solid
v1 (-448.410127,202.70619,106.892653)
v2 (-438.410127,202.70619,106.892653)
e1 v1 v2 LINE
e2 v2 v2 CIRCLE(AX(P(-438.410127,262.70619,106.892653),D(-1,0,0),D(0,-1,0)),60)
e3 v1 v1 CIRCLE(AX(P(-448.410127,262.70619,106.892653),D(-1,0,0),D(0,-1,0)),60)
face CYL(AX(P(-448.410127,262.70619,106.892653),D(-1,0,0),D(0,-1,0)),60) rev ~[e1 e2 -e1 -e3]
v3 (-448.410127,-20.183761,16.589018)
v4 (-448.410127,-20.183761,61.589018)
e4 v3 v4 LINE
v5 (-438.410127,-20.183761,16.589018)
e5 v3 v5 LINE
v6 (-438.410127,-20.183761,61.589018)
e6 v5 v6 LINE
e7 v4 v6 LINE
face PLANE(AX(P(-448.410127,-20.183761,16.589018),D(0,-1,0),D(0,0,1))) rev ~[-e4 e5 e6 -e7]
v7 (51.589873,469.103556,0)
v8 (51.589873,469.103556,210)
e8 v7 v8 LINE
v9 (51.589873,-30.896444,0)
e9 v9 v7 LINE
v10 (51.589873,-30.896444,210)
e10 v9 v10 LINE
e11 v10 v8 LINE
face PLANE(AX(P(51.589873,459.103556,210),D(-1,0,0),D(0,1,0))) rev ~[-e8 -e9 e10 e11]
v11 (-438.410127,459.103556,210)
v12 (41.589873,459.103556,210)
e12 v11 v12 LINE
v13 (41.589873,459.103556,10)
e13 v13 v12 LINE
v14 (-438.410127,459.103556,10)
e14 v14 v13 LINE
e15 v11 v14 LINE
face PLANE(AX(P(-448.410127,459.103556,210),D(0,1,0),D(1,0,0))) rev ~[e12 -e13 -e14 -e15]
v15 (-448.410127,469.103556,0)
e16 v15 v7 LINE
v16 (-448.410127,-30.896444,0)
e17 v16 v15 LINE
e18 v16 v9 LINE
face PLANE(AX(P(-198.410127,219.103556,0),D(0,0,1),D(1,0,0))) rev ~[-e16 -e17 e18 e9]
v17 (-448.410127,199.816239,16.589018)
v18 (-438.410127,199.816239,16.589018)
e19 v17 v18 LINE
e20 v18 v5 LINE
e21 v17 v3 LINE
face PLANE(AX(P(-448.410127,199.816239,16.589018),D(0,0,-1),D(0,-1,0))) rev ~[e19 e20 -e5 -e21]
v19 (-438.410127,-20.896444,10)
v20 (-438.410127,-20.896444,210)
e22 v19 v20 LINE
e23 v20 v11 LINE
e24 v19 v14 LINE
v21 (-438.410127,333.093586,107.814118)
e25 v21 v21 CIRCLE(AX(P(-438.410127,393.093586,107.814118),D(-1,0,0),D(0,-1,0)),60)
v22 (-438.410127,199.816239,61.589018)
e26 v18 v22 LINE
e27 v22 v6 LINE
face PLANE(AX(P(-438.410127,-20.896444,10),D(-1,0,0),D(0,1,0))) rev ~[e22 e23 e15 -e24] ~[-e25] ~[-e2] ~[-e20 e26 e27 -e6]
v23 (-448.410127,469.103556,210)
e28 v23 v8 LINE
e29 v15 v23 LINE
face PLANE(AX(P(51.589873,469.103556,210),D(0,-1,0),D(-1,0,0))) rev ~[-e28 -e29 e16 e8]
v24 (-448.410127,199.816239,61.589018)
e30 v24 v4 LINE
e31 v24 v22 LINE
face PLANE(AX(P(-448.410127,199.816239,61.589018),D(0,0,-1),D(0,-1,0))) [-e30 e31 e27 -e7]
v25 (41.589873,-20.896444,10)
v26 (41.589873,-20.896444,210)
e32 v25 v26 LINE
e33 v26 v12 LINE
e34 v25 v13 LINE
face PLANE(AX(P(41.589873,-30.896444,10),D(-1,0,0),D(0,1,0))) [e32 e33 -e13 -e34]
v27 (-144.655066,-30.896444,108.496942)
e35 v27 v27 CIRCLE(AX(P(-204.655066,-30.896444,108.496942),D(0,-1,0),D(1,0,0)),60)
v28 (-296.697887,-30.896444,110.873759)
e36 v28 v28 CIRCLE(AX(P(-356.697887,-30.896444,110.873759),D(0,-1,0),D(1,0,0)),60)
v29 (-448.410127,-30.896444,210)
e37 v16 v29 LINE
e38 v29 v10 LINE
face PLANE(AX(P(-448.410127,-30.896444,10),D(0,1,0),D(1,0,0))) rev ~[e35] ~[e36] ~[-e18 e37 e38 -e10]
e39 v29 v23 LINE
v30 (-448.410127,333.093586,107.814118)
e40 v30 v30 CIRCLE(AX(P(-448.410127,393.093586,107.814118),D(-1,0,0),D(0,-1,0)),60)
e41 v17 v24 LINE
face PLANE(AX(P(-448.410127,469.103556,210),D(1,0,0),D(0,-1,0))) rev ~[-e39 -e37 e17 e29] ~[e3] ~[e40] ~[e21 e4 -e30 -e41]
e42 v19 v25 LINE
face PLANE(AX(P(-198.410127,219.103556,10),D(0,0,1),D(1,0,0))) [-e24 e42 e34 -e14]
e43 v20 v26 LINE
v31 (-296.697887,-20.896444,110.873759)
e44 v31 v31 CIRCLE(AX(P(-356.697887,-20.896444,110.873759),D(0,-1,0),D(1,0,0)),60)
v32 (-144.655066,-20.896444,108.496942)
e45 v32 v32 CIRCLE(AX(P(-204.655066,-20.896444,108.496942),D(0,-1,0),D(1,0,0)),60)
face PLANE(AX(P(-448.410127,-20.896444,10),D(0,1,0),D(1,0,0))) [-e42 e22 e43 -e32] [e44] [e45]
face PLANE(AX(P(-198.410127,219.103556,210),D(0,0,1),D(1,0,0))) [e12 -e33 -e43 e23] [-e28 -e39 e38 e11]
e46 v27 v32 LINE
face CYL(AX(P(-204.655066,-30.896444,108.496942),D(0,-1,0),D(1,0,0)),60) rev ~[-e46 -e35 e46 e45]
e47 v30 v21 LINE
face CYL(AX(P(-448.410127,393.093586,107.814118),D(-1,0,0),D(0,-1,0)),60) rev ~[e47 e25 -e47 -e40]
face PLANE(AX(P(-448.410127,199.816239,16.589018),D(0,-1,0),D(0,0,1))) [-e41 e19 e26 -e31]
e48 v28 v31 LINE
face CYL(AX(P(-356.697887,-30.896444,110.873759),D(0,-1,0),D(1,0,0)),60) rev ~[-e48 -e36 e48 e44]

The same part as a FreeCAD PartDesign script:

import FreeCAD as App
import Part
import Sketcher

V = App.Vector

doc = App.newDocument("Part")
body = doc.addObject("PartDesign::Body", "Body")

sketch1 = body.newObject("Sketcher::SketchObject", "Sketch")
sketch1.AttachmentSupport = (doc.getObject("XY_Plane"), [""])
sketch1.MapMode = "FlatFace"
sketch1.addGeometry([
    Part.LineSegment(V(-448, 469, 0), V(-448, -31, 0)),
    Part.LineSegment(V(-448, -31, 0), V(52, -31, 0)),
    Part.LineSegment(V(52, -31, 0), V(52, 469, 0)),
    Part.LineSegment(V(52, 469, 0), V(-448, 469, 0)),
], False)
sketch1.addConstraint([
    Sketcher.Constraint("Coincident", 0, 2, 1, 1),
    Sketcher.Constraint("Coincident", 1, 2, 2, 1),
    Sketcher.Constraint("Coincident", 2, 2, 3, 1),
    Sketcher.Constraint("Coincident", 3, 2, 0, 1),
    Sketcher.Constraint("Vertical", 0),
    Sketcher.Constraint("Horizontal", 1),
    Sketcher.Constraint("Vertical", 2),
    Sketcher.Constraint("Horizontal", 3),
    Sketcher.Constraint("Equal", 3, 0),
    Sketcher.Constraint("DistanceX", 1, 1, 1, 2, 500.0),
    Sketcher.Constraint("DistanceX", 0, 2, -1, 1, 448.410127),
    Sketcher.Constraint("DistanceY", 0, 2, -1, 1, 30.896444),
])
pad1 = body.newObject("PartDesign::Pad", "Pad")
pad1.Profile = sketch1
pad1.Length = 10

sketch2 = body.newObject("Sketcher::SketchObject", "Sketch001")
sketch2.AttachmentSupport = (doc.getObject("XY_Plane"), [""])
sketch2.MapMode = "FlatFace"
sketch2.AttachmentOffset = App.Placement(V(0, 0, 10), App.Rotation())
sketch2.addGeometry([
    Part.LineSegment(V(-448, 469, 0), V(-448, 459, 0)),
    Part.LineSegment(V(-448, 459, 0), V(52, 459, 0)),
    Part.LineSegment(V(52, 459, 0), V(52, 469, 0)),
    Part.LineSegment(V(52, 469, 0), V(-448, 469, 0)),
], False)
sketch2.addConstraint([
    Sketcher.Constraint("Coincident", 0, 2, 1, 1),
    Sketcher.Constraint("Coincident", 1, 2, 2, 1),
    Sketcher.Constraint("Coincident", 2, 2, 3, 1),
    Sketcher.Constraint("Coincident", 3, 2, 0, 1),
    Sketcher.Constraint("Vertical", 0),
    Sketcher.Constraint("Horizontal", 1),
    Sketcher.Constraint("Vertical", 2),
    Sketcher.Constraint("Horizontal", 3),
    Sketcher.Constraint("DistanceX", 1, 1, 1, 2, 500.0),
    Sketcher.Constraint("DistanceY", 0, 2, 0, 1, 10.0),
    Sketcher.Constraint("DistanceX", 0, 2, -1, 1, 448.410127),
    Sketcher.Constraint("DistanceY", -1, 1, 0, 2, 459.103556),
])
pad2 = body.newObject("PartDesign::Pad", "Pad001")
pad2.Profile = sketch2
pad2.Length = 200

sketch3 = body.newObject("Sketcher::SketchObject", "Sketch002")
sketch3.AttachmentSupport = (doc.getObject("XY_Plane"), [""])
sketch3.MapMode = "FlatFace"
sketch3.AttachmentOffset = App.Placement(V(0, 0, 10), App.Rotation())
sketch3.addGeometry([
    Part.LineSegment(V(42, 459, 0), V(42, -31, 0)),
    Part.LineSegment(V(42, -31, 0), V(52, -31, 0)),
    Part.LineSegment(V(52, -31, 0), V(52, 459, 0)),
    Part.LineSegment(V(52, 459, 0), V(42, 459, 0)),
], False)
sketch3.addConstraint([
    Sketcher.Constraint("Coincident", 0, 2, 1, 1),
    Sketcher.Constraint("Coincident", 1, 2, 2, 1),
    Sketcher.Constraint("Coincident", 2, 2, 3, 1),
    Sketcher.Constraint("Coincident", 3, 2, 0, 1),
    Sketcher.Constraint("Vertical", 0),
    Sketcher.Constraint("Horizontal", 1),
    Sketcher.Constraint("Vertical", 2),
    Sketcher.Constraint("Horizontal", 3),
    Sketcher.Constraint("DistanceX", 1, 1, 1, 2, 10.0),
    Sketcher.Constraint("DistanceY", 0, 2, 0, 1, 490.0),
    Sketcher.Constraint("DistanceX", -1, 1, 0, 2, 41.589873),
    Sketcher.Constraint("DistanceY", 0, 2, -1, 1, 30.896444),
])
pad3 = body.newObject("PartDesign::Pad", "Pad002")
pad3.Profile = sketch3
pad3.Length = 250

sketch4 = body.newObject("Sketcher::SketchObject", "Sketch003")
sketch4.AttachmentSupport = (doc.getObject("XY_Plane"), [""])
sketch4.MapMode = "FlatFace"
sketch4.AttachmentOffset = App.Placement(V(0, 0, 10), App.Rotation())
sketch4.addGeometry([
    Part.LineSegment(V(-448, -21, 0), V(-448, -31, 0)),
    Part.LineSegment(V(-448, -31, 0), V(42, -31, 0)),
    Part.LineSegment(V(42, -31, 0), V(42, -21, 0)),
    Part.LineSegment(V(42, -21, 0), V(-448, -21, 0)),
], False)
sketch4.addConstraint([
    Sketcher.Constraint("Coincident", 0, 2, 1, 1),
    Sketcher.Constraint("Coincident", 1, 2, 2, 1),
    Sketcher.Constraint("Coincident", 2, 2, 3, 1),
    Sketcher.Constraint("Coincident", 3, 2, 0, 1),
    Sketcher.Constraint("Vertical", 0),
    Sketcher.Constraint("Horizontal", 1),
    Sketcher.Constraint("Vertical", 2),
    Sketcher.Constraint("Horizontal", 3),
    Sketcher.Constraint("DistanceX", 1, 1, 1, 2, 490.0),
    Sketcher.Constraint("DistanceY", 0, 2, 0, 1, 10.0),
    Sketcher.Constraint("DistanceX", 0, 2, -1, 1, 448.410127),
    Sketcher.Constraint("DistanceY", 0, 2, -1, 1, 30.896444),
])
pad4 = body.newObject("PartDesign::Pad", "Pad003")
pad4.Profile = sketch4
pad4.Length = 250

sketch5 = body.newObject("Sketcher::SketchObject", "Sketch004")
sketch5.AttachmentSupport = (doc.getObject("XY_Plane"), [""])
sketch5.MapMode = "FlatFace"
sketch5.AttachmentOffset = App.Placement(V(0, 0, 10), App.Rotation())
sketch5.addGeometry([
    Part.LineSegment(V(-448, 459, 0), V(-448, -21, 0)),
    Part.LineSegment(V(-448, -21, 0), V(-438, -21, 0)),
    Part.LineSegment(V(-438, -21, 0), V(-438, 459, 0)),
    Part.LineSegment(V(-438, 459, 0), V(-448, 459, 0)),
], False)
sketch5.addConstraint([
    Sketcher.Constraint("Coincident", 0, 2, 1, 1),
    Sketcher.Constraint("Coincident", 1, 2, 2, 1),
    Sketcher.Constraint("Coincident", 2, 2, 3, 1),
    Sketcher.Constraint("Coincident", 3, 2, 0, 1),
    Sketcher.Constraint("Vertical", 0),
    Sketcher.Constraint("Horizontal", 1),
    Sketcher.Constraint("Vertical", 2),
    Sketcher.Constraint("Horizontal", 3),
    Sketcher.Constraint("DistanceX", 1, 1, 1, 2, 10.0),
    Sketcher.Constraint("DistanceY", 0, 2, 0, 1, 480.0),
    Sketcher.Constraint("DistanceX", 0, 2, -1, 1, 448.410127),
    Sketcher.Constraint("DistanceY", 0, 2, -1, 1, 20.896444),
])
pad5 = body.newObject("PartDesign::Pad", "Pad004")
pad5.Profile = sketch5
pad5.Length = 250

sketch6 = body.newObject("Sketcher::SketchObject", "Sketch005")
sketch6.AttachmentSupport = (doc.getObject("XY_Plane"), [""])
sketch6.MapMode = "FlatFace"
sketch6.AttachmentOffset = App.Placement(V(0, 0, 210), App.Rotation())
sketch6.addGeometry([
    Part.LineSegment(V(-448, 459, 0), V(52, 459, 0)),
    Part.LineSegment(V(52, 459, 0), V(52, 469, 0)),
    Part.LineSegment(V(52, 469, 0), V(-448, 469, 0)),
    Part.LineSegment(V(-448, 469, 0), V(-448, 459, 0)),
], False)
sketch6.addConstraint([
    Sketcher.Constraint("Coincident", 0, 2, 1, 1),
    Sketcher.Constraint("Coincident", 1, 2, 2, 1),
    Sketcher.Constraint("Coincident", 2, 2, 3, 1),
    Sketcher.Constraint("Coincident", 3, 2, 0, 1),
    Sketcher.Constraint("Horizontal", 0),
    Sketcher.Constraint("Vertical", 1),
    Sketcher.Constraint("Horizontal", 2),
    Sketcher.Constraint("Vertical", 3),
    Sketcher.Constraint("DistanceX", 0, 1, 0, 2, 500.0),
    Sketcher.Constraint("DistanceY", 1, 1, 1, 2, 10.0),
    Sketcher.Constraint("DistanceX", -1, 1, 0, 2, 51.589873),
    Sketcher.Constraint("DistanceY", -1, 1, 0, 2, 459.103556),
])
pad6 = body.newObject("PartDesign::Pad", "Pad005")
pad6.Profile = sketch6
pad6.Length = 50

sketch7 = body.newObject("Sketcher::SketchObject", "Sketch006")
sketch7.AttachmentSupport = (doc.getObject("XY_Plane"), [""])
sketch7.MapMode = "FlatFace"
sketch7.AttachmentOffset = App.Placement(V(0, 0, 260), App.Rotation())
sketch7.addGeometry([
    Part.LineSegment(V(-448, 469, 0), V(-448, -31, 0)),
    Part.LineSegment(V(-448, -31, 0), V(52, -31, 0)),
    Part.LineSegment(V(52, -31, 0), V(52, 469, 0)),
    Part.LineSegment(V(52, 469, 0), V(-448, 469, 0)),
    Part.LineSegment(V(42, -21, 0), V(-438, -21, 0)),
    Part.LineSegment(V(-438, -21, 0), V(-438, 459, 0)),
    Part.LineSegment(V(-438, 459, 0), V(42, 459, 0)),
    Part.LineSegment(V(42, 459, 0), V(42, -21, 0)),
], False)
sketch7.addConstraint([
    Sketcher.Constraint("Coincident", 0, 2, 1, 1),
    Sketcher.Constraint("Coincident", 1, 2, 2, 1),
    Sketcher.Constraint("Coincident", 2, 2, 3, 1),
    Sketcher.Constraint("Coincident", 3, 2, 0, 1),
    Sketcher.Constraint("Coincident", 4, 2, 5, 1),
    Sketcher.Constraint("Coincident", 5, 2, 6, 1),
    Sketcher.Constraint("Coincident", 6, 2, 7, 1),
    Sketcher.Constraint("Coincident", 7, 2, 4, 1),
    Sketcher.Constraint("Vertical", 0),
    Sketcher.Constraint("Horizontal", 1),
    Sketcher.Constraint("Vertical", 2),
    Sketcher.Constraint("Horizontal", 3),
    Sketcher.Constraint("Horizontal", 4),
    Sketcher.Constraint("Vertical", 5),
    Sketcher.Constraint("Horizontal", 6),
    Sketcher.Constraint("Vertical", 7),
    Sketcher.Constraint("Equal", 3, 0),
    Sketcher.Constraint("Equal", 6, 5),
    Sketcher.Constraint("DistanceX", 1, 1, 1, 2, 500.0),
    Sketcher.Constraint("DistanceX", 4, 2, 4, 1, 480.0),
    Sketcher.Constraint("DistanceX", 0, 2, 4, 2, 10.0),
    Sketcher.Constraint("DistanceY", 0, 2, 4, 2, 10.0),
    Sketcher.Constraint("DistanceX", 0, 2, -1, 1, 448.410127),
    Sketcher.Constraint("DistanceY", 0, 2, -1, 1, 30.896444),
])
pocket1 = body.newObject("PartDesign::Pocket", "Pocket")
pocket1.Profile = sketch7
pocket1.Length = 50

sketch8 = body.newObject("Sketcher::SketchObject", "Sketch007")
sketch8.AttachmentSupport = (doc.getObject("XZ_Plane"), [""])
sketch8.MapMode = "FlatFace"
sketch8.AttachmentOffset = App.Placement(V(0, 0, 30.896444), App.Rotation())
sketch8.addGeometry(Part.Circle(V(-357, 111, 0), V(0, 0, 1), 60), False)
sketch8.addConstraint([
    Sketcher.Constraint("Diameter", 0, 120.0),
    Sketcher.Constraint("DistanceY", -1, 1, 0, 3, 110.873759),
    Sketcher.Constraint("DistanceX", 0, 3, -1, 1, 356.697887),
])
pocket2 = body.newObject("PartDesign::Pocket", "Pocket001")
pocket2.Profile = sketch8
pocket2.Length = 70

sketch9 = body.newObject("Sketcher::SketchObject", "Sketch008")
sketch9.AttachmentSupport = (doc.getObject("XZ_Plane"), [""])
sketch9.MapMode = "FlatFace"
sketch9.AttachmentOffset = App.Placement(V(0, 0, 30.896444), App.Rotation())
sketch9.addGeometry(Part.Circle(V(-205, 108, 0), V(0, 0, 1), 60), False)
sketch9.addConstraint([
    Sketcher.Constraint("Diameter", 0, 120.0),
    Sketcher.Constraint("DistanceX", 0, 3, -1, 1, 204.655066),
    Sketcher.Constraint("DistanceY", -1, 1, 0, 3, 108.496942),
])
pocket3 = body.newObject("PartDesign::Pocket", "Pocket002")
pocket3.Profile = sketch9
pocket3.Length = 122

sketch10 = body.newObject("Sketcher::SketchObject", "Sketch009")
sketch10.AttachmentSupport = (doc.getObject("YZ_Plane"), [""])
sketch10.MapMode = "FlatFace"
sketch10.AttachmentOffset = App.Placement(V(0, 0, -448.410127), App.Rotation())
sketch10.addGeometry([
    Part.LineSegment(V(200, 62, 0), V(200, 17, 0)),
    Part.LineSegment(V(200, 17, 0), V(-20, 17, 0)),
    Part.LineSegment(V(-20, 17, 0), V(-20, 62, 0)),
    Part.LineSegment(V(-20, 62, 0), V(200, 62, 0)),
], False)
sketch10.addConstraint([
    Sketcher.Constraint("Coincident", 0, 2, 1, 1),
    Sketcher.Constraint("Coincident", 1, 2, 2, 1),
    Sketcher.Constraint("Coincident", 2, 2, 3, 1),
    Sketcher.Constraint("Coincident", 3, 2, 0, 1),
    Sketcher.Constraint("Vertical", 0),
    Sketcher.Constraint("Horizontal", 1),
    Sketcher.Constraint("Vertical", 2),
    Sketcher.Constraint("Horizontal", 3),
    Sketcher.Constraint("DistanceX", 1, 2, 1, 1, 220.0),
    Sketcher.Constraint("DistanceY", 0, 2, 0, 1, 45.0),
    Sketcher.Constraint("DistanceX", -1, 1, 0, 2, 199.816239),
    Sketcher.Constraint("DistanceY", -1, 1, 2, 2, 61.589018),
])
pocket4 = body.newObject("PartDesign::Pocket", "Pocket003")
pocket4.Profile = sketch10
pocket4.Length = 25
pocket4.Reversed = True

sketch11 = body.newObject("Sketcher::SketchObject", "Sketch010")
sketch11.AttachmentSupport = (doc.getObject("YZ_Plane"), [""])
sketch11.MapMode = "FlatFace"
sketch11.AttachmentOffset = App.Placement(V(0, 0, -448.410127), App.Rotation())
sketch11.addGeometry(Part.Circle(V(393, 108, 0), V(0, 0, 1), 60), False)
sketch11.addConstraint([
    Sketcher.Constraint("Diameter", 0, 120.0),
    Sketcher.Constraint("DistanceX", -1, 1, 0, 3, 393.093586),
    Sketcher.Constraint("DistanceY", -1, 1, 0, 3, 107.814118),
])
pocket5 = body.newObject("PartDesign::Pocket", "Pocket004")
pocket5.Profile = sketch11
pocket5.Length = 25
pocket5.Reversed = True

sketch12 = body.newObject("Sketcher::SketchObject", "Sketch011")
sketch12.AttachmentSupport = (doc.getObject("YZ_Plane"), [""])
sketch12.MapMode = "FlatFace"
sketch12.AttachmentOffset = App.Placement(V(0, 0, -448.410127), App.Rotation())
sketch12.addGeometry(Part.Circle(V(263, 107, 0), V(0, 0, 1), 60), False)
sketch12.addConstraint([
    Sketcher.Constraint("Diameter", 0, 120.0),
    Sketcher.Constraint("DistanceX", -1, 1, 0, 3, 262.70619),
    Sketcher.Constraint("DistanceY", -1, 1, 0, 3, 106.892653),
])
pocket6 = body.newObject("PartDesign::Pocket", "Pocket005")
pocket6.Profile = sketch12
pocket6.Length = 25
pocket6.Reversed = True

doc.recompute()
